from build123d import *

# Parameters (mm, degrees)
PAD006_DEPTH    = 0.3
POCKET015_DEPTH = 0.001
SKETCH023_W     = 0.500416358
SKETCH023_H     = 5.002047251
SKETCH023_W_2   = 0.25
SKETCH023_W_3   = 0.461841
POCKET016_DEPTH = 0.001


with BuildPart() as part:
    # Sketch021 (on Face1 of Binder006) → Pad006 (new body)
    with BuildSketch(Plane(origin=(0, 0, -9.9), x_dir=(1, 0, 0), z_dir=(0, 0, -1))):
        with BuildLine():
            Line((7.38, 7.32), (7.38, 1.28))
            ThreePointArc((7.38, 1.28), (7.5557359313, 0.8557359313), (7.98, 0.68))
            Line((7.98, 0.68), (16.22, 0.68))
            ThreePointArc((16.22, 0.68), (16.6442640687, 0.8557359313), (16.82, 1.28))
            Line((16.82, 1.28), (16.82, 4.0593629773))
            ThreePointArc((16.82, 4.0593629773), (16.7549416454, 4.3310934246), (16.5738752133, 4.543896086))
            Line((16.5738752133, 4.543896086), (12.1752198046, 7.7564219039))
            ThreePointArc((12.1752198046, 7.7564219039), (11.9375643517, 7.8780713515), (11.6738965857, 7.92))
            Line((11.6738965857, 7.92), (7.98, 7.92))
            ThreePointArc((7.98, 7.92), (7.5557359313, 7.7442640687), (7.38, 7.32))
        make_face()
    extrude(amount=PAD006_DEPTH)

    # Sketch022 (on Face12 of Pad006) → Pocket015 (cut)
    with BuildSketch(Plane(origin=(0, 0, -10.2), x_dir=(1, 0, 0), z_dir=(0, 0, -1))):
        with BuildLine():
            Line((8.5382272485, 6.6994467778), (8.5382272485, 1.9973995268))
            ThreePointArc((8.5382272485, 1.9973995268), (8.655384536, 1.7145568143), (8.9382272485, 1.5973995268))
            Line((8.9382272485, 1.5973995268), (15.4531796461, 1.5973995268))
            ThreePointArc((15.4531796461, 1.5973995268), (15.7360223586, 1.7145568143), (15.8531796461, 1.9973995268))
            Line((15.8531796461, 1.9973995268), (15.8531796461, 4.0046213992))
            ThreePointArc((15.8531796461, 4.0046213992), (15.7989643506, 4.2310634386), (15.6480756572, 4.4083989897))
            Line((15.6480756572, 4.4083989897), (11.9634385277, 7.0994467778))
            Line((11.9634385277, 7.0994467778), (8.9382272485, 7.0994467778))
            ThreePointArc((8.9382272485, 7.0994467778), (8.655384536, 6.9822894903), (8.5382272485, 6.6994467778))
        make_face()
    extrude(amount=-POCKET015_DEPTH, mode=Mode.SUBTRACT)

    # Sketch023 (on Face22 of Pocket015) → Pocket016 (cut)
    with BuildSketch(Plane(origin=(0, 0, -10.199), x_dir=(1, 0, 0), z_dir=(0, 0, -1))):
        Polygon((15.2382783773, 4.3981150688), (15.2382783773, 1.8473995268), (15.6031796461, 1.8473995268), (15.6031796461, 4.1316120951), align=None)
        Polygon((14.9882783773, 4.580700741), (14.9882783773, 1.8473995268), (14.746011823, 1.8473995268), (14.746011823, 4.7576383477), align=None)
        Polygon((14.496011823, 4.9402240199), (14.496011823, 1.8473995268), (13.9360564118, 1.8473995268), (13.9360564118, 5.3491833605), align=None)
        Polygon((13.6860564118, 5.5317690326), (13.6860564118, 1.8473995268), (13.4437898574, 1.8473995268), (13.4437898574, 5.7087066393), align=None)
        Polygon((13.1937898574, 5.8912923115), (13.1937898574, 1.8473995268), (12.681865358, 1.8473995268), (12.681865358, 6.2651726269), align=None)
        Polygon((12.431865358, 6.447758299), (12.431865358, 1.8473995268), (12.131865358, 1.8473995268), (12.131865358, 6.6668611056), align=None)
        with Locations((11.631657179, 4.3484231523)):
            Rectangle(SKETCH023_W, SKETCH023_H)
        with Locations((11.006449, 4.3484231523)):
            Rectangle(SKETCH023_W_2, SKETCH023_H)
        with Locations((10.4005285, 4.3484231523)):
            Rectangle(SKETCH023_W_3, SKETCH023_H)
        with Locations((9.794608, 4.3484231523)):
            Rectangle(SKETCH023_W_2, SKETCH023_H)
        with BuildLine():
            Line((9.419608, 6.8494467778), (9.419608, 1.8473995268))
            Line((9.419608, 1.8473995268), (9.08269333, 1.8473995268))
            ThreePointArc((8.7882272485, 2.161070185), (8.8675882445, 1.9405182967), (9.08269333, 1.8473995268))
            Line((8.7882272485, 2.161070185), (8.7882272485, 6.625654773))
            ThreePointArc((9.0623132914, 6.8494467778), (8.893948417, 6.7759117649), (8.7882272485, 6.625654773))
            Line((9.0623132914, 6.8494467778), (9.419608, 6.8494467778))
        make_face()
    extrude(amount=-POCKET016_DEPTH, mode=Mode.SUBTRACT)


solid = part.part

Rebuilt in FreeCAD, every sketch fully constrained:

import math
import FreeCAD as App
import Part
import Sketcher
from FreeCAD import Vector


def add_polygon(sketch, points):
    """Adds a closed chain of lines whose ends are joined by coincident constraints."""
    first, n = sketch.GeometryCount, len(points)
    for a, b in zip(points, points[1:] + points[:1]):
        sketch.addGeometry(Part.LineSegment(App.Vector(*a, 0), App.Vector(*b, 0)), False)
    for i in range(n):
        sketch.addConstraint(Sketcher.Constraint("Coincident", first + i, 2, first + (i + 1) % n, 1))

doc = App.newDocument("Part")
params = doc.addObject("Spreadsheet::Sheet", "Params")
for row, (alias, value) in enumerate([
    ("sketch1_radius", "0.6 mm"),
    ("sketch1_radius2", "0.85 mm"),
    ("sketch1_width", "8.24 mm"),
    ("sketch1_height", "6.04 mm"),
    ("pad1_length", "0.3 mm"),
    ("sketch2_radius", "0.4 mm"),
    ("sketch2_radius2", "0.5 mm"),
    ("pocket1_length", "0.001 mm"),
    ("sketch3_width", "0.3 mm"),
    ("sketch3_length", "0.3 mm"),
    ("sketch3_width2", "0.25 mm"),
    ("pocket2_length", "0.001 mm"),
], start=1):
    params.set(f"A{row}", alias)
    params.set(f"B{row}", "=" + value)
    params.setAlias(f"B{row}", alias)

body = doc.addObject("PartDesign::Body", "Body")

# Sketch on XY plane
sketch1 = body.newObject("Sketcher::SketchObject", "Sketch")
sketch1.AttachmentSupport = (doc.getObject("XY_Plane"), [""])
sketch1.MapMode = "FlatFace"
sketch1.AttachmentOffset = App.Placement(Vector(0, 0, -9.9), App.Rotation())
sketch1.addGeometry(Part.LineSegment(Vector(7.4, -7.3, 0), Vector(7.4, -1.3, 0)), False)
sketch1.addGeometry(Part.ArcOfCircle(Part.Circle(Vector(8, -1.3, 0), Vector(0, 0, 1), 0.6), math.radians(90), math.radians(180)), False)
sketch1.addGeometry(Part.LineSegment(Vector(8, -0.7, 0), Vector(16.2, -0.7, 0)), False)
sketch1.addGeometry(Part.ArcOfCircle(Part.Circle(Vector(16.2, -1.3, 0), Vector(0, 0, 1), 0.6), math.radians(0), math.radians(90)), False)
sketch1.addGeometry(Part.LineSegment(Vector(16.8, -1.3, 0), Vector(16.8, -4.1, 0)), False)
sketch1.addGeometry(Part.ArcOfCircle(Part.Circle(Vector(16.2, -4.1, 0), Vector(0, 0, 1), 0.6), math.radians(-54), math.radians(0)), False)
sketch1.addGeometry(Part.LineSegment(Vector(16.6, -4.5, 0), Vector(12.2, -7.8, 0)), False)
sketch1.addGeometry(Part.ArcOfCircle(Part.Circle(Vector(11.7, -7.1, 0), Vector(0, 0, 1), 0.8), math.radians(-90), math.radians(-54)), False)
sketch1.addGeometry(Part.LineSegment(Vector(11.7, -7.9, 0), Vector(8, -7.9, 0)), False)
sketch1.addGeometry(Part.ArcOfCircle(Part.Circle(Vector(8, -7.3, 0), Vector(0, 0, 1), 0.6), math.radians(180), math.radians(270)), False)
sketch1.addConstraint(Sketcher.Constraint("Tangent", 0, 2, 1, 2))
sketch1.addConstraint(Sketcher.Constraint("Tangent", 1, 1, 2, 1))
sketch1.addConstraint(Sketcher.Constraint("Tangent", 2, 2, 3, 2))
sketch1.addConstraint(Sketcher.Constraint("Tangent", 3, 1, 4, 1))
sketch1.addConstraint(Sketcher.Constraint("Tangent", 4, 2, 5, 2))
sketch1.addConstraint(Sketcher.Constraint("Tangent", 5, 1, 6, 1))
sketch1.addConstraint(Sketcher.Constraint("Tangent", 6, 2, 7, 2))
sketch1.addConstraint(Sketcher.Constraint("Tangent", 7, 1, 8, 1))
sketch1.addConstraint(Sketcher.Constraint("Tangent", 8, 2, 9, 2))
sketch1.addConstraint(Sketcher.Constraint("Tangent", 9, 1, 0, 1))
sketch1.addConstraint(Sketcher.Constraint("Vertical", 0))
sketch1.addConstraint(Sketcher.Constraint("Horizontal", 2))
sketch1.addConstraint(Sketcher.Constraint("Vertical", 4))
sketch1.addConstraint(Sketcher.Constraint("Horizontal", 8))
sketch1.addConstraint(Sketcher.Constraint("Equal", 1, 3))
sketch1.addConstraint(Sketcher.Constraint("Equal", 3, 5))
sketch1.addConstraint(Sketcher.Constraint("Equal", 5, 9))
sketch1.addConstraint(Sketcher.Constraint("Radius", 1, 0.6))
sketch1.addConstraint(Sketcher.Constraint("Radius", 7, 0.85))
sketch1.addConstraint(Sketcher.Constraint("DistanceX", 2, 1, 2, 2, 8.24))
sketch1.addConstraint(Sketcher.Constraint("DistanceY", 0, 1, 0, 2, 6.04))
sketch1.addConstraint(Sketcher.Constraint("DistanceX", -1, 1, 1, 3, 7.98))
sketch1.addConstraint(Sketcher.Constraint("DistanceY", 1, 3, -1, 1, 1.28))
sketch1.addConstraint(Sketcher.Constraint("Distance", 6, 5.446879))
sketch1.addConstraint(Sketcher.Constraint("DistanceX", 8, 2, 8, 1, 3.693897))
sketch1.setExpression("Constraints[17]", "Params.sketch1_radius")
sketch1.setExpression("Constraints[18]", "Params.sketch1_radius2")
sketch1.setExpression("Constraints[19]", "Params.sketch1_width")
sketch1.setExpression("Constraints[20]", "Params.sketch1_height")
pad1 = body.newObject("PartDesign::Pad", "Pad")
pad1.Profile = sketch1
pad1.setExpression("Length", "Params.pad1_length")
pad1.Reversed = True

# Sketch on XY plane
sketch2 = body.newObject("Sketcher::SketchObject", "Sketch001")
sketch2.AttachmentSupport = (doc.getObject("XY_Plane"), [""])
sketch2.MapMode = "FlatFace"
sketch2.AttachmentOffset = App.Placement(Vector(0, 0, -10.2), App.Rotation())
sketch2.addGeometry(Part.LineSegment(Vector(8.54, -6.7, 0), Vector(8.54, -2, 0)), False)
sketch2.addGeometry(Part.ArcOfCircle(Part.Circle(Vector(8.94, -2, 0), Vector(0, 0, 1), 0.4), math.radians(90), math.radians(180)), False)
sketch2.addGeometry(Part.LineSegment(Vector(8.94, -1.6, 0), Vector(15.45, -1.6, 0)), False)
sketch2.addGeometry(Part.ArcOfCircle(Part.Circle(Vector(15.45, -2, 0), Vector(0, 0, 1), 0.4), math.radians(0), math.radians(90)), False)
sketch2.addGeometry(Part.LineSegment(Vector(15.85, -2, 0), Vector(15.85, -4, 0)), False)
sketch2.addGeometry(Part.ArcOfCircle(Part.Circle(Vector(15.35, -4, 0), Vector(0, 0, 1), 0.5), math.radians(-54), math.radians(0)), False)
sketch2.addGeometry(Part.LineSegment(Vector(15.65, -4.41, 0), Vector(11.96, -7.1, 0)), False)
sketch2.addGeometry(Part.LineSegment(Vector(11.96, -7.1, 0), Vector(8.94, -7.1, 0)), False)
sketch2.addGeometry(Part.ArcOfCircle(Part.Circle(Vector(8.94, -6.7, 0), Vector(0, 0, 1), 0.4), math.radians(180), math.radians(270)), False)
sketch2.addConstraint(Sketcher.Constraint("Tangent", 0, 2, 1, 2))
sketch2.addConstraint(Sketcher.Constraint("Tangent", 1, 1, 2, 1))
sketch2.addConstraint(Sketcher.Constraint("Tangent", 2, 2, 3, 2))
sketch2.addConstraint(Sketcher.Constraint("Tangent", 3, 1, 4, 1))
sketch2.addConstraint(Sketcher.Constraint("Tangent", 4, 2, 5, 2))
sketch2.addConstraint(Sketcher.Constraint("Tangent", 5, 1, 6, 1))
sketch2.addConstraint(Sketcher.Constraint("Coincident", 6, 2, 7, 1))
sketch2.addConstraint(Sketcher.Constraint("Tangent", 7, 2, 8, 2))
sketch2.addConstraint(Sketcher.Constraint("Tangent", 8, 1, 0, 1))
sketch2.addConstraint(Sketcher.Constraint("Vertical", 0))
sketch2.addConstraint(Sketcher.Constraint("Horizontal", 2))
sketch2.addConstraint(Sketcher.Constraint("Vertical", 4))
sketch2.addConstraint(Sketcher.Constraint("Horizontal", 7))
sketch2.addConstraint(Sketcher.Constraint("Equal", 1, 3))
sketch2.addConstraint(Sketcher.Constraint("Equal", 3, 8))
sketch2.addConstraint(Sketcher.Constraint("Radius", 1, 0.4))
sketch2.addConstraint(Sketcher.Constraint("Radius", 5, 0.5))
sketch2.addConstraint(Sketcher.Constraint("DistanceY", 5, 1, 3, 3, 2.410999))
sketch2.addConstraint(Sketcher.Constraint("DistanceX", 7, 2, 7, 1, 3.025211))
sketch2.addConstraint(Sketcher.Constraint("DistanceY", 4, 2, 4, 1, 2.007222))
sketch2.addConstraint(Sketcher.Constraint("DistanceY", 1, 3, -1, 1, 1.9974))
sketch2.addConstraint(Sketcher.Constraint("DistanceX", 2, 1, 2, 2, 6.514952))
sketch2.addConstraint(Sketcher.Constraint("DistanceX", -1, 1, 3, 3, 15.45318))
sketch2.setExpression("Constraints[15]", "Params.sketch2_radius")
sketch2.setExpression("Constraints[16]", "Params.sketch2_radius2")
pocket1 = body.newObject("PartDesign::Pocket", "Pocket")
pocket1.Profile = sketch2
pocket1.setExpression("Length", "Params.pocket1_length")
pocket1.Reversed = True

# Sketch on XY plane
sketch3 = body.newObject("Sketcher::SketchObject", "Sketch002")
sketch3.AttachmentSupport = (doc.getObject("XY_Plane"), [""])
sketch3.MapMode = "FlatFace"
sketch3.AttachmentOffset = App.Placement(Vector(0, 0, -10.199), App.Rotation())
add_polygon(sketch3, [(15.24, -4.4), (15.24, -1.85), (15.6, -1.85), (15.6, -4.13)])  # lines 0-3
add_polygon(sketch3, [(14.99, -1.85), (14.99, -4.58), (14.75, -4.76), (14.75, -1.85)])  # lines 4-7
add_polygon(sketch3, [(14.5, -1.85), (14.5, -4.94), (13.94, -5.35), (13.94, -1.85)])  # lines 8-11
add_polygon(sketch3, [(13.69, -1.85), (13.69, -5.53), (13.44, -5.71), (13.44, -1.85)])  # lines 12-15
add_polygon(sketch3, [(13.19, -1.85), (13.19, -5.89), (12.68, -6.27), (12.68, -1.85)])  # lines 16-19
add_polygon(sketch3, [(12.43, -1.85), (12.43, -6.45), (12.13, -6.67), (12.13, -1.85)])  # lines 20-23
add_polygon(sketch3, [(11.38, -6.85), (11.38, -1.85), (11.88, -1.85), (11.88, -6.85)])  # lines 24-27
add_polygon(sketch3, [(10.88, -6.85), (10.88, -1.85), (11.13, -1.85), (11.13, -6.85)])  # lines 28-31
add_polygon(sketch3, [(10.17, -6.85), (10.17, -1.85), (10.63, -1.85), (10.63, -6.85)])  # lines 32-35
add_polygon(sketch3, [(9.67, -6.85), (9.67, -1.85), (9.92, -1.85), (9.92, -6.85)])  # lines 36-39
sketch3.addGeometry(Part.LineSegment(Vector(9.42, -1.85, 0), Vector(9.42, -6.85, 0)), False)  # 40
sketch3.addGeometry(Part.LineSegment(Vector(9.42, -6.85, 0), Vector(9.06, -6.85, 0)), False)  # 41
sketch3.addGeometry(Part.ArcOfCircle(Part.Circle(Vector(9.11, -6.51, 0), Vector(0, 0, 1), 0.34), math.radians(-161), math.radians(-98)), False)  # 42
sketch3.addGeometry(Part.LineSegment(Vector(8.79, -6.63, 0), Vector(8.79, -2.16, 0)), False)  # 43
sketch3.addGeometry(Part.ArcOfCircle(Part.Circle(Vector(9.08, -2.14, 0), Vector(0, 0, 1), 0.3), math.radians(90), math.radians(184)), False)  # 44
sketch3.addGeometry(Part.LineSegment(Vector(9.08, -1.85, 0), Vector(9.42, -1.85, 0)), False)  # 45
sketch3.addConstraint(Sketcher.Constraint("Coincident", 40, 2, 41, 1))
sketch3.addConstraint(Sketcher.Constraint("Coincident", 41, 2, 42, 2))
sketch3.addConstraint(Sketcher.Constraint("Coincident", 42, 1, 43, 1))
sketch3.addConstraint(Sketcher.Constraint("Coincident", 43, 2, 44, 2))
sketch3.addConstraint(Sketcher.Constraint("Coincident", 44, 1, 45, 1))
sketch3.addConstraint(Sketcher.Constraint("Coincident", 45, 2, 40, 1))
sketch3.addConstraint(Sketcher.Constraint("Vertical", 0))
sketch3.addConstraint(Sketcher.Constraint("Horizontal", 1))
sketch3.addConstraint(Sketcher.Constraint("Vertical", 2))
sketch3.addConstraint(Sketcher.Constraint("Vertical", 4))
sketch3.addConstraint(Sketcher.Constraint("Vertical", 6))
sketch3.addConstraint(Sketcher.Constraint("Horizontal", 7))
sketch3.addConstraint(Sketcher.Constraint("Vertical", 8))
sketch3.addConstraint(Sketcher.Constraint("Vertical", 10))
sketch3.addConstraint(Sketcher.Constraint("Horizontal", 11))
sketch3.addConstraint(Sketcher.Constraint("Vertical", 12))
sketch3.addConstraint(Sketcher.Constraint("Vertical", 14))
sketch3.addConstraint(Sketcher.Constraint("Horizontal", 15))
sketch3.addConstraint(Sketcher.Constraint("Vertical", 16))
sketch3.addConstraint(Sketcher.Constraint("Vertical", 18))
sketch3.addConstraint(Sketcher.Constraint("Horizontal", 19))
sketch3.addConstraint(Sketcher.Constraint("Vertical", 20))
sketch3.addConstraint(Sketcher.Constraint("Vertical", 22))
sketch3.addConstraint(Sketcher.Constraint("Horizontal", 23))
sketch3.addConstraint(Sketcher.Constraint("Vertical", 24))
sketch3.addConstraint(Sketcher.Constraint("Horizontal", 25))
sketch3.addConstraint(Sketcher.Constraint("Vertical", 26))
sketch3.addConstraint(Sketcher.Constraint("Horizontal", 27))
sketch3.addConstraint(Sketcher.Constraint("Vertical", 28))
sketch3.addConstraint(Sketcher.Constraint("Horizontal", 29))
sketch3.addConstraint(Sketcher.Constraint("Vertical", 30))
sketch3.addConstraint(Sketcher.Constraint("Horizontal", 31))
sketch3.addConstraint(Sketcher.Constraint("Vertical", 32))
sketch3.addConstraint(Sketcher.Constraint("Horizontal", 33))
sketch3.addConstraint(Sketcher.Constraint("Vertical", 34))
sketch3.addConstraint(Sketcher.Constraint("Horizontal", 35))
sketch3.addConstraint(Sketcher.Constraint("Vertical", 36))
sketch3.addConstraint(Sketcher.Constraint("Horizontal", 37))
sketch3.addConstraint(Sketcher.Constraint("Vertical", 38))
sketch3.addConstraint(Sketcher.Constraint("Horizontal", 39))
sketch3.addConstraint(Sketcher.Constraint("Vertical", 40))
sketch3.addConstraint(Sketcher.Constraint("Horizontal", 41))
sketch3.addConstraint(Sketcher.Constraint("Vertical", 43))
sketch3.addConstraint(Sketcher.Constraint("Horizontal", 45))
sketch3.addConstraint(Sketcher.Constraint("Parallel", 3, 5))
sketch3.addConstraint(Sketcher.Constraint("Parallel", 5, 9))
sketch3.addConstraint(Sketcher.Constraint("Parallel", 9, 13))
sketch3.addConstraint(Sketcher.Constraint("Parallel", 13, 17))
sketch3.addConstraint(Sketcher.Constraint("Parallel", 17, 21))
sketch3.addConstraint(Sketcher.Constraint("Horizontal", 1, 2, 6, 2))
sketch3.addConstraint(Sketcher.Constraint("Horizontal", 7, 2, 10, 2))
sketch3.addConstraint(Sketcher.Constraint("Horizontal", 11, 2, 14, 2))
sketch3.addConstraint(Sketcher.Constraint("Horizontal", 15, 2, 18, 2))
sketch3.addConstraint(Sketcher.Constraint("Horizontal", 19, 2, 22, 2))
sketch3.addConstraint(Sketcher.Constraint("Horizontal", 23, 2, 24, 2))
sketch3.addConstraint(Sketcher.Constraint("Horizontal", 25, 2, 28, 2))
sketch3.addConstraint(Sketcher.Constraint("Horizontal", 27, 2, 30, 2))
sketch3.addConstraint(Sketcher.Constraint("Horizontal", 29, 2, 32, 2))
sketch3.addConstraint(Sketcher.Constraint("Horizontal", 31, 2, 34, 2))
sketch3.addConstraint(Sketcher.Constraint("Horizontal", 33, 2, 36, 2))
sketch3.addConstraint(Sketcher.Constraint("Horizontal", 35, 2, 38, 2))
sketch3.addConstraint(Sketcher.Constraint("Horizontal", 39, 2, 40, 2))
sketch3.addConstraint(Sketcher.Constraint("Horizontal", 37, 2, 44, 1))
sketch3.addConstraint(Sketcher.Constraint("Equal", 7, 15))
sketch3.addConstraint(Sketcher.Constraint("Equal", 31, 37))
sketch3.addConstraint(Sketcher.Constraint("DistanceX", 23, 1, 23, 2, 0.3))
sketch3.addConstraint(Sketcher.Constraint("Distance", 5, 0.3))
sketch3.addConstraint(Sketcher.Constraint("DistanceX", 29, 1, 29, 2, 0.25))
sketch3.addConstraint(Sketcher.Constraint("DistanceX", 25, 2, 18, 2, 0.8))
sketch3.addConstraint(Sketcher.Constraint("DistanceX", 28, 2, 24, 2, 0.5))
sketch3.addConstraint(Sketcher.Constraint("DistanceX", 33, 2, 29, 2, 0.5))
sketch3.addConstraint(Sketcher.Constraint("DistanceX", 36, 2, 32, 2, 0.5))
sketch3.addConstraint(Sketcher.Constraint("DistanceX", 40, 2, 38, 2, 0.5))
sketch3.addConstraint(Sketcher.Constraint("DistanceX", 4, 2, 3, 2, 0.25))
sketch3.addConstraint(Sketcher.Constraint("DistanceX", 8, 2, 5, 2, 0.25))
sketch3.addConstraint(Sketcher.Constraint("DistanceX", 12, 2, 9, 2, 0.25))
sketch3.addConstraint(Sketcher.Constraint("DistanceX", 16, 2, 13, 2, 0.25))
sketch3.addConstraint(Sketcher.Constraint("DistanceX", 20, 2, 17, 2, 0.25))
sketch3.addConstraint(Sketcher.Constraint("DistanceX", 1, 1, 1, 2, 0.364901))
sketch3.addConstraint(Sketcher.Constraint("DistanceY", 4, 2, 4, 1, 2.733301))
sketch3.addConstraint(Sketcher.Constraint("Radius", 42, 0.340786))
sketch3.addConstraint(Sketcher.Constraint("Radius", 44, 0.295086))
sketch3.addConstraint(Sketcher.Constraint("DistanceX", 33, 1, 33, 2, 0.461841))
sketch3.addConstraint(Sketcher.Constraint("DistanceY", 6, 1, 6, 2, 2.910239))
sketch3.addConstraint(Sketcher.Constraint("DistanceY", 12, 2, 12, 1, 3.68437))
sketch3.addConstraint(Sketcher.Constraint("DistanceY", 20, 2, 20, 1, 4.600359))
sketch3.addConstraint(Sketcher.Constraint("DistanceY", 0, 2, -1, 1, 1.8474))
sketch3.addConstraint(Sketcher.Constraint("DistanceX", 42, 3, 1, 2, 6.493698))
sketch3.addConstraint(Sketcher.Constraint("DistanceX", 43, 2, 44, 3, 0.294501))
sketch3.addConstraint(Sketcher.Constraint("Distance", 17, 0.633919))
sketch3.addConstraint(Sketcher.Constraint("DistanceX", 11, 1, 11, 2, 0.559955))
sketch3.addConstraint(Sketcher.Constraint("DistanceX", 25, 1, 25, 2, 0.500416))
sketch3.addConstraint(Sketcher.Constraint("DistanceX", 41, 2, 41, 1, 0.357295))
sketch3.addConstraint(Sketcher.Constraint("DistanceX", 45, 1, 45, 2, 0.336915))
sketch3.addConstraint(Sketcher.Constraint("DistanceY", 0, 1, 0, 2, 2.550716))
sketch3.addConstraint(Sketcher.Constraint("DistanceY", 8, 2, 8, 1, 3.092824))
sketch3.addConstraint(Sketcher.Constraint("DistanceY", 16, 2, 16, 1, 4.043893))
sketch3.addConstraint(Sketcher.Constraint("DistanceY", 24, 1, 24, 2, 5.002047))
sketch3.addConstraint(Sketcher.Constraint("DistanceY", 43, 1, 43, 2, 4.464585))
sketch3.addConstraint(Sketcher.Constraint("DistanceX", -1, 1, 42, 3, 9.109481))
sketch3.setExpression("Constraints[105]", "Params.sketch3_width")
sketch3.setExpression("Constraints[106]", "Params.sketch3_length")
sketch3.setExpression("Constraints[107]", "Params.sketch3_width2")
pocket2 = body.newObject("PartDesign::Pocket", "Pocket001")
pocket2.Profile = sketch3
pocket2.setExpression("Length", "Params.pocket2_length")
pocket2.Reversed = True

doc.recompute()
